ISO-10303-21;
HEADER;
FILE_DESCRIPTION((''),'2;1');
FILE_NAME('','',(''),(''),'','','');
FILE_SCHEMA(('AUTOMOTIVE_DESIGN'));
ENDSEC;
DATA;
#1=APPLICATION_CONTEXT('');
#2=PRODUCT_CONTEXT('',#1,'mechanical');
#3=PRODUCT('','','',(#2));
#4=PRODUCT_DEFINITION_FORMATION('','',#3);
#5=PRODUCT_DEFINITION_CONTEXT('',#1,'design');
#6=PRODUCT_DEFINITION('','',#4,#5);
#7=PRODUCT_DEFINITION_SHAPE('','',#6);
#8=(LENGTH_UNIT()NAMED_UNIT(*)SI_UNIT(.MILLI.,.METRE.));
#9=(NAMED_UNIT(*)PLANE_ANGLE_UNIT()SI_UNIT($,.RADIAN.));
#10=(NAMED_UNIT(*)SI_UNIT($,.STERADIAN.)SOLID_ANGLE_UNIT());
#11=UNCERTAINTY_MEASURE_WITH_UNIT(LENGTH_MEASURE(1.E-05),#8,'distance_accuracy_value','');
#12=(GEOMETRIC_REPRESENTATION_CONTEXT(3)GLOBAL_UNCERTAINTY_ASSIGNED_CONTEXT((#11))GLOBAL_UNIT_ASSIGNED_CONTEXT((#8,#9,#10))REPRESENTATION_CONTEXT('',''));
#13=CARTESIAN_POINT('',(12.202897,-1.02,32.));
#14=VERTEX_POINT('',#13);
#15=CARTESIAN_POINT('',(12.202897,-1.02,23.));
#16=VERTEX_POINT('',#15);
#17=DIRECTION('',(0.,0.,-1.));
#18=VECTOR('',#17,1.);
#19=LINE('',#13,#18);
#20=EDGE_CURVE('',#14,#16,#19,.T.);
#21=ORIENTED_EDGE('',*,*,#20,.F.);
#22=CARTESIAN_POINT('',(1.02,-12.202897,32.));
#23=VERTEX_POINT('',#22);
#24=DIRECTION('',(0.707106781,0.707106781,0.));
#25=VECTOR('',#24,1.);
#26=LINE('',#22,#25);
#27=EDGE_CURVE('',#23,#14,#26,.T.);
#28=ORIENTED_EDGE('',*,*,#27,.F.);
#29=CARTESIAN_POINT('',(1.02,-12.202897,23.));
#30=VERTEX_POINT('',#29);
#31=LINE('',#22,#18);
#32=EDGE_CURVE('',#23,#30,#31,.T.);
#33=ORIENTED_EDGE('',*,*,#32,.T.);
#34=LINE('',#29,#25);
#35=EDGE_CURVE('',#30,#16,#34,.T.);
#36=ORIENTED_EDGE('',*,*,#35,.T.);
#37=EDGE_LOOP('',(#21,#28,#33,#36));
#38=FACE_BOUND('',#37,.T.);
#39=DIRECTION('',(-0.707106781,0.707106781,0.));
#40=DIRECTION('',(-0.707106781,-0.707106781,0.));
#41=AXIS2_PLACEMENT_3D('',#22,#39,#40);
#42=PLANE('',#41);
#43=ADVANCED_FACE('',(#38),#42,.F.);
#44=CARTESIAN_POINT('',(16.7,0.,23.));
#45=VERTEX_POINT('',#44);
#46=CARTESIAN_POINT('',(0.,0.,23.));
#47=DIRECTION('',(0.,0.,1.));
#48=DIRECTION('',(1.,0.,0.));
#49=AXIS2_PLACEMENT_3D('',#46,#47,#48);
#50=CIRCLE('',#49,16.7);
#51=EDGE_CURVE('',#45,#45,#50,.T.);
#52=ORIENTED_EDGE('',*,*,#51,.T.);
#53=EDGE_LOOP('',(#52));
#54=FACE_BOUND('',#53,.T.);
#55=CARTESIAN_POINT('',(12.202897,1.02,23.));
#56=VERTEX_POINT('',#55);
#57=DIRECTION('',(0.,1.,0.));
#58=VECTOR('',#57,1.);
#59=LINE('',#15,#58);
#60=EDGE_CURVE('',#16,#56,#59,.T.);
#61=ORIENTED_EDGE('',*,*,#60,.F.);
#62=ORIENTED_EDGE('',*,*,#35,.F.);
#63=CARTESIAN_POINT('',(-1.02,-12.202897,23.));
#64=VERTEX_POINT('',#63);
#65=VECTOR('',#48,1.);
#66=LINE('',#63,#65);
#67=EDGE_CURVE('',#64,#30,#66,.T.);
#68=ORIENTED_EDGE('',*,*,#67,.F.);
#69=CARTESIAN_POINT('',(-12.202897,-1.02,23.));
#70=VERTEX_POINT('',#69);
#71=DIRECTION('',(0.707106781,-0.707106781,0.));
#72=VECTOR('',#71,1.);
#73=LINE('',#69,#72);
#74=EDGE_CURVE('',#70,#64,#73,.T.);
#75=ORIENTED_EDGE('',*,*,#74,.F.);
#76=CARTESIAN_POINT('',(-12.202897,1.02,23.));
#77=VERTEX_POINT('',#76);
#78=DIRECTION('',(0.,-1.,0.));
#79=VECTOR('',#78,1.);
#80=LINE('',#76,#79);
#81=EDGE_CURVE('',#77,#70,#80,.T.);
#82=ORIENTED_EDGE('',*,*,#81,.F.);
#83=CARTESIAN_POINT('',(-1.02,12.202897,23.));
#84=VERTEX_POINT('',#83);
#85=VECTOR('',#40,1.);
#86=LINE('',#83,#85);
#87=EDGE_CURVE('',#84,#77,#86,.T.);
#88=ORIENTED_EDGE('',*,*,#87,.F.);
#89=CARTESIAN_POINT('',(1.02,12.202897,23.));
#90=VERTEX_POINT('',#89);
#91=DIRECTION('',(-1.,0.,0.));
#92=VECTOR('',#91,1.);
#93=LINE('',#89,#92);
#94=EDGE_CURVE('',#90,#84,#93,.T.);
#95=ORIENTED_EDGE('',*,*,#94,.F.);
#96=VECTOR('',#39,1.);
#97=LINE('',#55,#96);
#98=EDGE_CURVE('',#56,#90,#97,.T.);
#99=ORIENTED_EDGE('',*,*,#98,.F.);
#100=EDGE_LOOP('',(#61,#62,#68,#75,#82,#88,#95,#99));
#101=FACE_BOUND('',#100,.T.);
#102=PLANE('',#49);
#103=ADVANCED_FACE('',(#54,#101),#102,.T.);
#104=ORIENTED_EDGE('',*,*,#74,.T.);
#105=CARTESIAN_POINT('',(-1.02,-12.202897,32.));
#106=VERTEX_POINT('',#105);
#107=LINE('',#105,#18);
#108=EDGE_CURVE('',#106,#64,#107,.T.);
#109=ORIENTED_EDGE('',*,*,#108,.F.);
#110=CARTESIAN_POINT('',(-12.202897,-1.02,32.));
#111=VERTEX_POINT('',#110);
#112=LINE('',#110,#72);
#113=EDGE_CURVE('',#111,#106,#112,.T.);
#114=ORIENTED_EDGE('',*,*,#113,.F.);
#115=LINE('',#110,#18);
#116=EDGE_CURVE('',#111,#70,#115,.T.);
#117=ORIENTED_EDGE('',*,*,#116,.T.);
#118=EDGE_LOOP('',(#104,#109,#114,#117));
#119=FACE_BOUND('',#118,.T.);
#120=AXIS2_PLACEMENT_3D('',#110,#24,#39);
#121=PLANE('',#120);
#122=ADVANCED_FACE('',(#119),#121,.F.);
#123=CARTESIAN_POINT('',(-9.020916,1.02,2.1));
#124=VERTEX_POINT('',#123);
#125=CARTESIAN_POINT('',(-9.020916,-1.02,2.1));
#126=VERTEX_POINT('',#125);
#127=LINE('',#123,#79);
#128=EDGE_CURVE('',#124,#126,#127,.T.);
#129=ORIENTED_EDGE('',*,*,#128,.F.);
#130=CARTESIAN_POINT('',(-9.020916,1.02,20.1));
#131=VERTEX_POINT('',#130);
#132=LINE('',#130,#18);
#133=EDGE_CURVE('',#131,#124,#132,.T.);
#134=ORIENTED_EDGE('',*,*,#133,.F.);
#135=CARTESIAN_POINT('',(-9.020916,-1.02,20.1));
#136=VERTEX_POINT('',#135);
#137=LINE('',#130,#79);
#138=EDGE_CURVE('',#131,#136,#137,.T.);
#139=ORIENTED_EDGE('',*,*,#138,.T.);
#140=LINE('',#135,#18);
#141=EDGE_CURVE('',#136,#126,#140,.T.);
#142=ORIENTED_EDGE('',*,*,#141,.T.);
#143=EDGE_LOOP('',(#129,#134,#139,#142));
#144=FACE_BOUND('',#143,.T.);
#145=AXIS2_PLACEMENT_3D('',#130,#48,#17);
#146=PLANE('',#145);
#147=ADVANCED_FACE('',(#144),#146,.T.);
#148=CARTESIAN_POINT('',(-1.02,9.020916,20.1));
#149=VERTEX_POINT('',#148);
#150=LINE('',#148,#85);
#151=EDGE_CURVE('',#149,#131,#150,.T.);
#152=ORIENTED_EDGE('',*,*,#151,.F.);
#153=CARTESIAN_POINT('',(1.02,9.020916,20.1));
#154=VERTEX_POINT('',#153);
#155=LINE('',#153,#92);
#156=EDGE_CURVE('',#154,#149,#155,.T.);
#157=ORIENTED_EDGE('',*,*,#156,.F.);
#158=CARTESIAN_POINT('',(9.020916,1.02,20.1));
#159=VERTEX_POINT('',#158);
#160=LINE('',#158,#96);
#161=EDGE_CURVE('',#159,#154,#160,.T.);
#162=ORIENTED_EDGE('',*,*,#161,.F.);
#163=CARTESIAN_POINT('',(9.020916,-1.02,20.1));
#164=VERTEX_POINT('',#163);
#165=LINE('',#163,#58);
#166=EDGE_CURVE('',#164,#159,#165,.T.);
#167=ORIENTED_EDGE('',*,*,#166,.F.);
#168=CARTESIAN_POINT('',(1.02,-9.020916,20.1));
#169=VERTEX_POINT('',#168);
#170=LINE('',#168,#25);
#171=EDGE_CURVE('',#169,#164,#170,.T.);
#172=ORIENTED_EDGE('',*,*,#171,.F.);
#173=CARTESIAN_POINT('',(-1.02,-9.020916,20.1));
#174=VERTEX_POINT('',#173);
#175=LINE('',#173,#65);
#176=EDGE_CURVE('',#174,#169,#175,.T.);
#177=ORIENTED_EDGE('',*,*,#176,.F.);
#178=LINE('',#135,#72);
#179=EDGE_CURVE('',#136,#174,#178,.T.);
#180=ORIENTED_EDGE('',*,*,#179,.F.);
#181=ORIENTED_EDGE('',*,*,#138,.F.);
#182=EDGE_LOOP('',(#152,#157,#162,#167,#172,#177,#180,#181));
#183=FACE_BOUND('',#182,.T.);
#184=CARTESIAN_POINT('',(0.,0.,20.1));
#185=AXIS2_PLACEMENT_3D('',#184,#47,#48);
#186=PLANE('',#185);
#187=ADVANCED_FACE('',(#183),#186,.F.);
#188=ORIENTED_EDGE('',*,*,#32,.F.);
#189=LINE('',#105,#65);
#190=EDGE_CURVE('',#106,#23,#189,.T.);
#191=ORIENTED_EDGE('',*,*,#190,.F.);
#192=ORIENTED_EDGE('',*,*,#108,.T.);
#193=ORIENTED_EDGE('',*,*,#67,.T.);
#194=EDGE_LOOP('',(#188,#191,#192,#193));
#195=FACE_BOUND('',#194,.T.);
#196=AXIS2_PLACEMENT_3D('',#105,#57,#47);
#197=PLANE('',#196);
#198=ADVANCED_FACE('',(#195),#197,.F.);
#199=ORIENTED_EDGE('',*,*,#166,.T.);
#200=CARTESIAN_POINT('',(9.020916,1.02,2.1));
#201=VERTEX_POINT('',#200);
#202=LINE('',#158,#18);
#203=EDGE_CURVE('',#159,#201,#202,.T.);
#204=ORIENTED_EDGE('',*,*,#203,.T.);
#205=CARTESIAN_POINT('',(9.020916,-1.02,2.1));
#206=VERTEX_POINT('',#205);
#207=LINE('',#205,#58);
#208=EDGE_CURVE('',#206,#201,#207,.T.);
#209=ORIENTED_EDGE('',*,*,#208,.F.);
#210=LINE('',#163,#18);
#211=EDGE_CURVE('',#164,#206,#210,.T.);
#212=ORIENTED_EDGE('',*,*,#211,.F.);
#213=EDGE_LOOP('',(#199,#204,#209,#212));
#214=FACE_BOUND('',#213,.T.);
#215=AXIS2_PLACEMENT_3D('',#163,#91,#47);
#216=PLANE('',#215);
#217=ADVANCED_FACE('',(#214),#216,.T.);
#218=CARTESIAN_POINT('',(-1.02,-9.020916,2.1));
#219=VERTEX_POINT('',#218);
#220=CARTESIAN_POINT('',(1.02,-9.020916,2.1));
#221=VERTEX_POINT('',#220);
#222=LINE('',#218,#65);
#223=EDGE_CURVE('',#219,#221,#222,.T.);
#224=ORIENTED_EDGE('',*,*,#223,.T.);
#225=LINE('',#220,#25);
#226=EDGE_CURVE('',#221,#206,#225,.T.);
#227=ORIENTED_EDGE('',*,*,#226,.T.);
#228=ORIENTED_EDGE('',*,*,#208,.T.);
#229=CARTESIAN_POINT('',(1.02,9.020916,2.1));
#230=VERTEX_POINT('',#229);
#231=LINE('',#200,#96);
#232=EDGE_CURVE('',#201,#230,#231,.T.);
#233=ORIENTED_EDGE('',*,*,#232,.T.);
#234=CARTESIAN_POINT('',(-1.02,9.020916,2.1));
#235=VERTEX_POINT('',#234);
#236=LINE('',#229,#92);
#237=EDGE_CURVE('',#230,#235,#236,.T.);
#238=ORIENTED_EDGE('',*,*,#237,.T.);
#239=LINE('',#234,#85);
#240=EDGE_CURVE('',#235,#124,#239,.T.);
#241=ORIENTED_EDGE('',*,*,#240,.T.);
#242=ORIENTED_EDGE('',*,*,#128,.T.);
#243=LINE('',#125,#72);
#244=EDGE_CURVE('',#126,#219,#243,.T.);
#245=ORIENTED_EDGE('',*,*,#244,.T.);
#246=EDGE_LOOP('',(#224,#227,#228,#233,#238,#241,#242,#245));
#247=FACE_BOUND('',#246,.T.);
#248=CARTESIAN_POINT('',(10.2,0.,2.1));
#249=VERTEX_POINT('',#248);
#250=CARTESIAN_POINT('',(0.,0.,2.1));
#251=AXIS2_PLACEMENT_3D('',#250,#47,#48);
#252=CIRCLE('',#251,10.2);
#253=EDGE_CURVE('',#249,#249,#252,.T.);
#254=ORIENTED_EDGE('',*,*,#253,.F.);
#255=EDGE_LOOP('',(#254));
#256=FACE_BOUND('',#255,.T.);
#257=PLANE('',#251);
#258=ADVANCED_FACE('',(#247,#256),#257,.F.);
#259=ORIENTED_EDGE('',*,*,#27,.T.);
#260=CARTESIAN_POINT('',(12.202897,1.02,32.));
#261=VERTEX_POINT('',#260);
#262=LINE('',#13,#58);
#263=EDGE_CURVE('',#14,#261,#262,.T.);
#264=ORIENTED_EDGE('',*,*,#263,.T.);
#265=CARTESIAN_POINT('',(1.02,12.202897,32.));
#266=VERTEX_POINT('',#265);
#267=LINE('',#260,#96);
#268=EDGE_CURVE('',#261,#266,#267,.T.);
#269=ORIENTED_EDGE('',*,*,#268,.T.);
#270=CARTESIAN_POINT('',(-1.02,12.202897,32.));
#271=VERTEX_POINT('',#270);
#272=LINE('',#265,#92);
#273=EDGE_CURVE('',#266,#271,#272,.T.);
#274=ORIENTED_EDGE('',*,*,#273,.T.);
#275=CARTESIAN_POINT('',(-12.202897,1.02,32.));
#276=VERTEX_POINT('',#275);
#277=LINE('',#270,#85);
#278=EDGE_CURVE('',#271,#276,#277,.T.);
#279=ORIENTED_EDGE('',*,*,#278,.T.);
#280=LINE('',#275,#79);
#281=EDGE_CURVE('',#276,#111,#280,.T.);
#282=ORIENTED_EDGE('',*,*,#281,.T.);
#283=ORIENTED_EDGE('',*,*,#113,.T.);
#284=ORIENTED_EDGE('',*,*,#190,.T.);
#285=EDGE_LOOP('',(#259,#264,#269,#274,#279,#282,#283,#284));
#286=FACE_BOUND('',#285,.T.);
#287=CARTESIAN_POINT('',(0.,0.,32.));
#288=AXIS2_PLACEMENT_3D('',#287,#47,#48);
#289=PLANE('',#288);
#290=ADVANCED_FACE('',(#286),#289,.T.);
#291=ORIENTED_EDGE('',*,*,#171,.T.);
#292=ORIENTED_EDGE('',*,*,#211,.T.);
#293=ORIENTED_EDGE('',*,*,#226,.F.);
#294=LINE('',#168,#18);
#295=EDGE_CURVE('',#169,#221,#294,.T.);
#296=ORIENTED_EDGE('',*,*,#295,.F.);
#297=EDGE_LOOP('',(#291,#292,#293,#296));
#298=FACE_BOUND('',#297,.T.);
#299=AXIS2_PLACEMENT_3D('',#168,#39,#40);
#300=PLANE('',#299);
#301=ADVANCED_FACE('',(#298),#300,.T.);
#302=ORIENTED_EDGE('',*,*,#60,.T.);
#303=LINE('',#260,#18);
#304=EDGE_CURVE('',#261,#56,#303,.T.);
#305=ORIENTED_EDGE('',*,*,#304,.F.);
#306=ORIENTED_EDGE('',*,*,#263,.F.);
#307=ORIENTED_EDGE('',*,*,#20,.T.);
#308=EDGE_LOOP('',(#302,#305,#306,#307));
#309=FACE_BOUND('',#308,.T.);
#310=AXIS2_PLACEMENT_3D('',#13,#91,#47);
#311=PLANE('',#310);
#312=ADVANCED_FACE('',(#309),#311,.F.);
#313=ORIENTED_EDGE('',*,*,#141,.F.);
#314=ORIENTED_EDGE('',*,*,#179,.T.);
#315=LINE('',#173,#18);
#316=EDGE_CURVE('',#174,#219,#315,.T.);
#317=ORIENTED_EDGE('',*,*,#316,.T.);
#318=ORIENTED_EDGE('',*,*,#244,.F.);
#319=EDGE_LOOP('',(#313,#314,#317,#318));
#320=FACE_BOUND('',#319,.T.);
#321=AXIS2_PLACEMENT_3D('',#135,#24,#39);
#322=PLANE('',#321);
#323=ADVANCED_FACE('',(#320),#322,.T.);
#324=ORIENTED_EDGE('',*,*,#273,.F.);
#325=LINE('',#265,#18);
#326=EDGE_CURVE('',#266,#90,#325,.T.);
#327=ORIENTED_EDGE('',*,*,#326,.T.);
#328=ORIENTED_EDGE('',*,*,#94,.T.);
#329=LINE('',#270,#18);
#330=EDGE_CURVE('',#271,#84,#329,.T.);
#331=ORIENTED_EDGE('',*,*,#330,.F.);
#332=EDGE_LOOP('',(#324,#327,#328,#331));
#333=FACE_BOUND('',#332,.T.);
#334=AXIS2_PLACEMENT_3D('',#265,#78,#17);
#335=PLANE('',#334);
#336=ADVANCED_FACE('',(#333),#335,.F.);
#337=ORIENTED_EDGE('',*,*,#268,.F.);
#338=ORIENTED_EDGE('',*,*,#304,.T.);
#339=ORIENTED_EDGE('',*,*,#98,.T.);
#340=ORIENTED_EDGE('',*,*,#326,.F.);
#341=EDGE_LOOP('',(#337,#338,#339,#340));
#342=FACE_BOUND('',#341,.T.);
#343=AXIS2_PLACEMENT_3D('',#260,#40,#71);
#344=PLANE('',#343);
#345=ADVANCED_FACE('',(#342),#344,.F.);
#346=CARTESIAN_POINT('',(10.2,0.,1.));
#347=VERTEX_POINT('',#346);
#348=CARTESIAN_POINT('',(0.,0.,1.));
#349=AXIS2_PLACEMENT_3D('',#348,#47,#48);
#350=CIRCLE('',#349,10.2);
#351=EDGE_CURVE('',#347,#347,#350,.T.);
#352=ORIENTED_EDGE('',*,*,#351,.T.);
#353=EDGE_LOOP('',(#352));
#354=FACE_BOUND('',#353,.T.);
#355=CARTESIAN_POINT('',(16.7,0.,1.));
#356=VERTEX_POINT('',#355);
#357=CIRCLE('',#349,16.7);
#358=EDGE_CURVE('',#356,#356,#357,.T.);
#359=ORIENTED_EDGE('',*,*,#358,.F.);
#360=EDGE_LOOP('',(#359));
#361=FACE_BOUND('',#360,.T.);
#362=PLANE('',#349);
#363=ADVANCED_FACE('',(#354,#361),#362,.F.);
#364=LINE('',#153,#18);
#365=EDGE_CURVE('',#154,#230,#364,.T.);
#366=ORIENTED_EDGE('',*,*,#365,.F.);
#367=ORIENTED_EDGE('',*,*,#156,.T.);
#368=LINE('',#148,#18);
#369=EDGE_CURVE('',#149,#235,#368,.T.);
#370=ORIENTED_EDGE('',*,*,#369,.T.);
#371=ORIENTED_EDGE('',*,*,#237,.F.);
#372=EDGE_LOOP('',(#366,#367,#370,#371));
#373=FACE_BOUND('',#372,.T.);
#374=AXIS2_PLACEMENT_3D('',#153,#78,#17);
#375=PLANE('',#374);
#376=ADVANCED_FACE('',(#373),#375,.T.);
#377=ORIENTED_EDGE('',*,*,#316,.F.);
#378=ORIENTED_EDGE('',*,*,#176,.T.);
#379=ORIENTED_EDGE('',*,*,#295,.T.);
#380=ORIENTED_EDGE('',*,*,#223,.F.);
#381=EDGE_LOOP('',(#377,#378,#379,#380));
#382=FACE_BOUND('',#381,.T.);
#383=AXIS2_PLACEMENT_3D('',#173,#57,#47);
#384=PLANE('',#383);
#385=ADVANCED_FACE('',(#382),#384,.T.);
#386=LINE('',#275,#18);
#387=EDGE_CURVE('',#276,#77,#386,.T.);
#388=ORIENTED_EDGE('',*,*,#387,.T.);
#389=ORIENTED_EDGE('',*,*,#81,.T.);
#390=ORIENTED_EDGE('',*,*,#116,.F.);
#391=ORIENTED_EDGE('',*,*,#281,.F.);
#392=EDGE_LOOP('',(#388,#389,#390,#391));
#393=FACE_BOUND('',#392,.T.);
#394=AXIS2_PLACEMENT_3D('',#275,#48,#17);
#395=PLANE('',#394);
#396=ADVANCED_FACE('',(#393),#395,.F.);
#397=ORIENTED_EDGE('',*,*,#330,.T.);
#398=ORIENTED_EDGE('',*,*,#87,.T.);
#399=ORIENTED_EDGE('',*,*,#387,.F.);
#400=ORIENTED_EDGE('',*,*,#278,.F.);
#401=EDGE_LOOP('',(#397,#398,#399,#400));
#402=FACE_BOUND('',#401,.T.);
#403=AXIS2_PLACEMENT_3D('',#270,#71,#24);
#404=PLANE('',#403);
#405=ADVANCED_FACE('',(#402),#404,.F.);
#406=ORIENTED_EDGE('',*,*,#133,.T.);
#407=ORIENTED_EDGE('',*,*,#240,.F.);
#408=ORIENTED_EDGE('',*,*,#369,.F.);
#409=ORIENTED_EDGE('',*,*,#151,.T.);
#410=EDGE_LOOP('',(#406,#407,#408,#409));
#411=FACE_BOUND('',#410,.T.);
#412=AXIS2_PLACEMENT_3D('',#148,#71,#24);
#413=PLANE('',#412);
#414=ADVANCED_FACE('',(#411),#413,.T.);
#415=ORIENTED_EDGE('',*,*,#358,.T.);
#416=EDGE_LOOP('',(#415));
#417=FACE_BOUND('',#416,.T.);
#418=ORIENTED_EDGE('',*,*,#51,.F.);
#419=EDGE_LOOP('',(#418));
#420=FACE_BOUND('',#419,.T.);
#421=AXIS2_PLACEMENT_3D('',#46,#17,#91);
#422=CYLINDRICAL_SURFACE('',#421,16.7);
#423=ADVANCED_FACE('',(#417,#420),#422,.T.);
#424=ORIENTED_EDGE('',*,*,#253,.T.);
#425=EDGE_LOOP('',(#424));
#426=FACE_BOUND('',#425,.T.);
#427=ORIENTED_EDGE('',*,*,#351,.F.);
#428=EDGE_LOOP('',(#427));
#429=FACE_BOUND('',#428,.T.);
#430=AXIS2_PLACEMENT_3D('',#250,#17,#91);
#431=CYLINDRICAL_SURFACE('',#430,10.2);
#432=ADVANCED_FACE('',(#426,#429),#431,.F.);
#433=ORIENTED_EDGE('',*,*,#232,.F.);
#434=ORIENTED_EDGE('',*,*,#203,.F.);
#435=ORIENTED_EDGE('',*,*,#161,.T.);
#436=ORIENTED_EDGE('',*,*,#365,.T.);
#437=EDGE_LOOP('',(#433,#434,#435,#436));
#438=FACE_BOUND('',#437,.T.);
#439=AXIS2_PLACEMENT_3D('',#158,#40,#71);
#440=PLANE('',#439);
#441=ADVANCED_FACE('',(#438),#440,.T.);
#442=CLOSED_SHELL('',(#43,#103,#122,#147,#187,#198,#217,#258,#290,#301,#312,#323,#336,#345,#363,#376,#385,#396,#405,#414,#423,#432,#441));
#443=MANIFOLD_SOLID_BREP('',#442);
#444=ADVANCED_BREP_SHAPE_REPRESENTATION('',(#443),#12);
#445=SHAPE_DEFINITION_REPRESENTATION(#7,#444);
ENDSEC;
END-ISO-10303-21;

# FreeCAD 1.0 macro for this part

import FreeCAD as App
import Part
import Sketcher

V = App.Vector

doc = App.newDocument("Part")
params = doc.addObject("Spreadsheet::Sheet", "Params")
for row, (alias, value) in enumerate([
    ("sketch1_diameter", "33.4 mm"),
    ("pad1_length", "22 mm"),
    ("sketch2_width", "2.04 mm"),
    ("pad2_length", "9 mm"),
    ("sketch3_width", "2.04 mm"),
    ("pocket1_length", "19.1 mm"),
    ("sketch4_diameter", "20.4 mm"),
    ("pocket2_length", "1.1 mm"),
], start=1):
    params.set(f"A{row}", alias)
    params.set(f"B{row}", "=" + value)
    params.setAlias(f"B{row}", alias)

body = doc.addObject("PartDesign::Body", "Body")

sketch1 = body.newObject("Sketcher::SketchObject", "Sketch")
sketch1.AttachmentSupport = (doc.getObject("XY_Plane"), [""])
sketch1.MapMode = "FlatFace"
sketch1.AttachmentOffset = App.Placement(V(0, 0, 1), App.Rotation())
sketch1.addGeometry(Part.Circle(V(0, 0, 0), V(0, 0, 1), 17), False)
sketch1.addConstraint([
    Sketcher.Constraint("Coincident", 0, 3, -1, 1),
    Sketcher.Constraint("Diameter", 0, 33.4),
])
sketch1.setExpression("Constraints[1]", "Params.sketch1_diameter")
pad1 = body.newObject("PartDesign::Pad", "Pad")
pad1.Profile = sketch1
pad1.setExpression("Length", "Params.pad1_length")

sketch2 = body.newObject("Sketcher::SketchObject", "Sketch001")
sketch2.AttachmentSupport = (doc.getObject("XY_Plane"), [""])
sketch2.MapMode = "FlatFace"
sketch2.AttachmentOffset = App.Placement(V(0, 0, 23), App.Rotation())
sketch2.addGeometry([
    Part.LineSegment(V(1, 12.2, 0), V(-1, 12.2, 0)),
    Part.LineSegment(V(-1, 12.2, 0), V(-12.2, 1, 0)),
    Part.LineSegment(V(-12.2, 1, 0), V(-12.2, -1, 0)),
    Part.LineSegment(V(-12.2, -1, 0), V(-1, -12.2, 0)),
    Part.LineSegment(V(-1, -12.2, 0), V(1, -12.2, 0)),
    Part.LineSegment(V(1, -12.2, 0), V(12.2, -1, 0)),
    Part.LineSegment(V(12.2, -1, 0), V(12.2, 1, 0)),
    Part.LineSegment(V(12.2, 1, 0), V(1, 12.2, 0)),
], False)
sketch2.addConstraint([
    Sketcher.Constraint("Coincident", 0, 2, 1, 1),
    Sketcher.Constraint("Coincident", 1, 2, 2, 1),
    Sketcher.Constraint("Coincident", 2, 2, 3, 1),
    Sketcher.Constraint("Coincident", 3, 2, 4, 1),
    Sketcher.Constraint("Coincident", 4, 2, 5, 1),
    Sketcher.Constraint("Coincident", 5, 2, 6, 1),
    Sketcher.Constraint("Coincident", 6, 2, 7, 1),
    Sketcher.Constraint("Coincident", 7, 2, 0, 1),
    Sketcher.Constraint("Horizontal", 0),
    Sketcher.Constraint("Vertical", 2),
    Sketcher.Constraint("Horizontal", 4),
    Sketcher.Constraint("Vertical", 6),
    Sketcher.Constraint("Symmetric", 0, 2, 4, 2, -1, 1),
    Sketcher.Constraint("Symmetric", 1, 2, 5, 2, -1, 1),
    Sketcher.Constraint("Perpendicular", 1, 3),
    Sketcher.Constraint("Perpendicular", 5, 7),
    Sketcher.Constraint("Horizontal", 2, 2, 5, 2),
    Sketcher.Constraint("Horizontal", 1, 2, 6, 2),
    Sketcher.Constraint("Vertical", 0, 2, 3, 2),
    Sketcher.Constraint("Equal", 4, 2),
    Sketcher.Constraint("DistanceX", 0, 2, 0, 1, 2.04),
    Sketcher.Constraint("Distance", 1, 15.815004),
])
sketch2.setExpression("Constraints[20]", "Params.sketch2_width")
pad2 = body.newObject("PartDesign::Pad", "Pad001")
pad2.Profile = sketch2
pad2.setExpression("Length", "Params.pad2_length")

sketch3 = body.newObject("Sketcher::SketchObject", "Sketch002")
sketch3.AttachmentSupport = (doc.getObject("XY_Plane"), [""])
sketch3.MapMode = "FlatFace"
sketch3.AttachmentOffset = App.Placement(V(0, 0, 1), App.Rotation())
sketch3.addGeometry([
    Part.LineSegment(V(1, 9, 0), V(-1, 9, 0)),
    Part.LineSegment(V(-1, 9, 0), V(-9, 1, 0)),
    Part.LineSegment(V(-9, 1, 0), V(-9, -1, 0)),
    Part.LineSegment(V(-9, -1, 0), V(-1, -9, 0)),
    Part.LineSegment(V(-1, -9, 0), V(1, -9, 0)),
    Part.LineSegment(V(1, -9, 0), V(9, -1, 0)),
    Part.LineSegment(V(9, -1, 0), V(9, 1, 0)),
    Part.LineSegment(V(9, 1, 0), V(1, 9, 0)),
], False)
sketch3.addConstraint([
    Sketcher.Constraint("Coincident", 0, 2, 1, 1),
    Sketcher.Constraint("Coincident", 1, 2, 2, 1),
    Sketcher.Constraint("Coincident", 2, 2, 3, 1),
    Sketcher.Constraint("Coincident", 3, 2, 4, 1),
    Sketcher.Constraint("Coincident", 4, 2, 5, 1),
    Sketcher.Constraint("Coincident", 5, 2, 6, 1),
    Sketcher.Constraint("Coincident", 6, 2, 7, 1),
    Sketcher.Constraint("Coincident", 7, 2, 0, 1),
    Sketcher.Constraint("Horizontal", 0),
    Sketcher.Constraint("Vertical", 2),
    Sketcher.Constraint("Horizontal", 4),
    Sketcher.Constraint("Vertical", 6),
    Sketcher.Constraint("Symmetric", 0, 2, 4, 2, -1, 1),
    Sketcher.Constraint("Symmetric", 1, 2, 5, 2, -1, 1),
    Sketcher.Constraint("Perpendicular", 1, 3),
    Sketcher.Constraint("Perpendicular", 5, 7),
    Sketcher.Constraint("Horizontal", 2, 2, 5, 2),
    Sketcher.Constraint("Horizontal", 1, 2, 6, 2),
    Sketcher.Constraint("Vertical", 0, 2, 3, 2),
    Sketcher.Constraint("Equal", 4, 2),
    Sketcher.Constraint("DistanceX", 0, 2, 0, 1, 2.04),
    Sketcher.Constraint("Distance", 1, 11.315004),
])
sketch3.setExpression("Constraints[20]", "Params.sketch3_width")
pocket1 = body.newObject("PartDesign::Pocket", "Pocket")
pocket1.Profile = sketch3
pocket1.setExpression("Length", "Params.pocket1_length")
pocket1.Reversed = True

sketch4 = body.newObject("Sketcher::SketchObject", "Sketch003")
sketch4.AttachmentSupport = (doc.getObject("XY_Plane"), [""])
sketch4.MapMode = "FlatFace"
sketch4.AttachmentOffset = App.Placement(V(0, 0, 1), App.Rotation())
sketch4.addGeometry(Part.Circle(V(0, 0, 0), V(0, 0, 1), 10), False)
sketch4.addConstraint([
    Sketcher.Constraint("Coincident", 0, 3, -1, 1),
    Sketcher.Constraint("Diameter", 0, 20.4),
])
sketch4.setExpression("Constraints[1]", "Params.sketch4_diameter")
pocket2 = body.newObject("PartDesign::Pocket", "Pocket001")
pocket2.Profile = sketch4
pocket2.setExpression("Length", "Params.pocket2_length")
pocket2.Reversed = True

doc.recompute()
